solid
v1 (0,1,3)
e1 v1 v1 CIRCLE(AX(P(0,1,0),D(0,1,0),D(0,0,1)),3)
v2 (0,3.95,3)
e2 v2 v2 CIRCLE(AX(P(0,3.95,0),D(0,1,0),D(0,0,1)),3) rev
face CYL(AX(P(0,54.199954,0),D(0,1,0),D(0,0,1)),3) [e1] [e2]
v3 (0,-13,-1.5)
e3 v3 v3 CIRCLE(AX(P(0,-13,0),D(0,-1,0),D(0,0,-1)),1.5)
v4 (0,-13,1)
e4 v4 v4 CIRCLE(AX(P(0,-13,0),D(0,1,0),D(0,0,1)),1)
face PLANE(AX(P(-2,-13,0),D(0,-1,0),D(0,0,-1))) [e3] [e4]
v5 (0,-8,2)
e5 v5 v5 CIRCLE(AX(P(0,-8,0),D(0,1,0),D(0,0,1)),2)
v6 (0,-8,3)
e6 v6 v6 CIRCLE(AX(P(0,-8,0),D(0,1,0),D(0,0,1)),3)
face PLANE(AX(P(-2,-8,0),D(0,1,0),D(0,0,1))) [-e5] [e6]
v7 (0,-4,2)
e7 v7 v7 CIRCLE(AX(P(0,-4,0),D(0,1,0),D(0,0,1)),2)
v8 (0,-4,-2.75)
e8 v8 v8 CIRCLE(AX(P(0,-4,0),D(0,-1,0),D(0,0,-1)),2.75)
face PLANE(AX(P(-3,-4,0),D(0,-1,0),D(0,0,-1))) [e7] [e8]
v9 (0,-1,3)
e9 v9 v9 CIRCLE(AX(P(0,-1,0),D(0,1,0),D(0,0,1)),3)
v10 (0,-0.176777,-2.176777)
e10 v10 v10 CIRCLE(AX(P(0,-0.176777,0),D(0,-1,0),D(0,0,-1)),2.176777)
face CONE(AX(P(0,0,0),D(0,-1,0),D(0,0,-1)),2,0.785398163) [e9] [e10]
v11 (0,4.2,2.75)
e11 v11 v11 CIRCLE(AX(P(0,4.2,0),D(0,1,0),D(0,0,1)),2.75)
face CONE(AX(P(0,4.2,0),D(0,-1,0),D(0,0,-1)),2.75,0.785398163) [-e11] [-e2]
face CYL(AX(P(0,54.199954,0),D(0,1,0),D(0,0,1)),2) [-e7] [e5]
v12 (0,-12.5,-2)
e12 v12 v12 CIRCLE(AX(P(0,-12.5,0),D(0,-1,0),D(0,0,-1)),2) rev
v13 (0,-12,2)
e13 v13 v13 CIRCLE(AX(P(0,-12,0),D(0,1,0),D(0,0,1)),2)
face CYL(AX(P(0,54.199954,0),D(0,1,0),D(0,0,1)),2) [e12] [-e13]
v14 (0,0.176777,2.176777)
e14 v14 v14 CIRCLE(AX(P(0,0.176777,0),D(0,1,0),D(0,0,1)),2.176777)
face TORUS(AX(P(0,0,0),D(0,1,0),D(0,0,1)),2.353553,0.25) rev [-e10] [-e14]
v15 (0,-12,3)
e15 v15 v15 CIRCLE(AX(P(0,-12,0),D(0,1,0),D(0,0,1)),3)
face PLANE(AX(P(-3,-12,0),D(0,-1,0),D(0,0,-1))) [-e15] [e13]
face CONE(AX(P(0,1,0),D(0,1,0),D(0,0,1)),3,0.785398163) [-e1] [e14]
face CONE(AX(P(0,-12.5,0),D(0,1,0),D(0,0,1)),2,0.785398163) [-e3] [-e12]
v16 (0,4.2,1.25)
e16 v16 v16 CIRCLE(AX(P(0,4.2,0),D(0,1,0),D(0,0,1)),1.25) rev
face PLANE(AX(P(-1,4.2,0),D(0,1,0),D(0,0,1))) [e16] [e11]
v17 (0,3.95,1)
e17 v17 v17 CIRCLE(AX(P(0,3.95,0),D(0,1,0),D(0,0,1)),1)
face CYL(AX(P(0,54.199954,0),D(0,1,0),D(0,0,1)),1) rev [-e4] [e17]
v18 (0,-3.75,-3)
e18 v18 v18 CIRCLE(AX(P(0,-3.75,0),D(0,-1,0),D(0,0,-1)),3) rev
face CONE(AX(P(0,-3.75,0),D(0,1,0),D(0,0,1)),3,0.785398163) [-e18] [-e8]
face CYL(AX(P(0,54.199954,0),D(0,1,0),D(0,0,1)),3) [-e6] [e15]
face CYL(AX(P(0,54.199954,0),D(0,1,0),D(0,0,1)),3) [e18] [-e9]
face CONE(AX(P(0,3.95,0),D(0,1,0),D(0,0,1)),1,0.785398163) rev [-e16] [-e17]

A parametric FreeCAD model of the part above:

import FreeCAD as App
import Part
import Sketcher

V = App.Vector


def edges_at(feature, points):
    """Names of the edges that pass closest to the given points."""
    edges = feature.Shape.Edges
    near = lambda p: min(range(len(edges)), key=lambda i: edges[i].distToShape(Part.Vertex(*p))[0])
    return sorted({f"Edge{near(p) + 1}" for p in points})


def add_polygon(sketch, points):
    """Adds a closed chain of lines whose ends are joined by coincident constraints."""
    first, n = sketch.GeometryCount, len(points)
    for a, b in zip(points, points[1:] + points[:1]):
        sketch.addGeometry(Part.LineSegment(App.Vector(*a, 0), App.Vector(*b, 0)), False)
    for i in range(n):
        sketch.addConstraint(Sketcher.Constraint("Coincident", first + i, 2, first + (i + 1) % n, 1))

doc = App.newDocument("Part")
body = doc.addObject("PartDesign::Body", "Body")

# Sketch on XY plane
sketch1 = body.newObject("Sketcher::SketchObject", "Sketch")
sketch1.AttachmentSupport = (doc.getObject("XY_Plane"), [""])
sketch1.MapMode = "FlatFace"
add_polygon(sketch1, [(-1, 4.2), (-3, 4.2), (-3, 1), (-2, 0), (-3, -1), (-3, -4), (-2, -4), (-2, -8), (-3, -8), (-3, -12), (-2, -12), (-2, -13), (-1, -13)])  # lines 0-12
sketch1.addConstraint([
    Sketcher.Constraint("Horizontal", 0),
    Sketcher.Constraint("Vertical", 1),
    Sketcher.Constraint("Vertical", 4),
    Sketcher.Constraint("Horizontal", 5),
    Sketcher.Constraint("Vertical", 6),
    Sketcher.Constraint("Horizontal", 7),
    Sketcher.Constraint("Vertical", 8),
    Sketcher.Constraint("Horizontal", 9),
    Sketcher.Constraint("Vertical", 10),
    Sketcher.Constraint("Horizontal", 11),
    Sketcher.Constraint("Vertical", 12),
    Sketcher.Constraint("Symmetric", 1, 2, 3, 2, -1),
    Sketcher.Constraint("PointOnObject", 2, 2, -1),
    Sketcher.Constraint("Perpendicular", 2, 3),
    Sketcher.Constraint("Vertical", 2, 2, 5, 2),
    Sketcher.Constraint("Vertical", 4, 2, 7, 2),
    Sketcher.Constraint("Vertical", 6, 2, 9, 2),
    Sketcher.Constraint("Equal", 9, 11),
    Sketcher.Constraint("Equal", 6, 8),
    Sketcher.Constraint("Equal", 11, 10),
    Sketcher.Constraint("DistanceX", 0, 2, 0, 1, 2.0),
    Sketcher.Constraint("DistanceY", 4, 2, 4, 1, 3.0),
    Sketcher.Constraint("DistanceY", 6, 2, 6, 1, 4.0),
    Sketcher.Constraint("DistanceY", 1, 2, 1, 1, 3.2),
    Sketcher.Constraint("DistanceX", 0, 2, -1, 1, 3.0),
])
revolution = body.newObject("PartDesign::Revolution", "Revolution")
revolution.Profile = sketch1
revolution.ReferenceAxis = (sketch1, ["V_Axis"])
revolution.Angle = 360
doc.recompute()

chamfer = body.newObject("PartDesign::Chamfer", "Chamfer")
chamfer.Base = (revolution, edges_at(revolution, [(0, 4.2, -1)]))
chamfer.Size = 0.25
doc.recompute()

chamfer2 = body.newObject("PartDesign::Chamfer", "Chamfer001")
chamfer2.Base = (chamfer, edges_at(chamfer, [(0, -13, -2)]))
chamfer2.Size = 0.5
doc.recompute()

chamfer3 = body.newObject("PartDesign::Chamfer", "Chamfer002")
chamfer3.Base = (chamfer2, edges_at(chamfer2, [(0, -4, -3), (0, 4.2, -3)]))
chamfer3.Size = 0.25
doc.recompute()

fillet = body.newObject("PartDesign::Fillet", "Fillet")
fillet.Base = (chamfer3, edges_at(chamfer3, [(0, 0, -2)]))
fillet.Radius = 0.25

doc.recompute()
